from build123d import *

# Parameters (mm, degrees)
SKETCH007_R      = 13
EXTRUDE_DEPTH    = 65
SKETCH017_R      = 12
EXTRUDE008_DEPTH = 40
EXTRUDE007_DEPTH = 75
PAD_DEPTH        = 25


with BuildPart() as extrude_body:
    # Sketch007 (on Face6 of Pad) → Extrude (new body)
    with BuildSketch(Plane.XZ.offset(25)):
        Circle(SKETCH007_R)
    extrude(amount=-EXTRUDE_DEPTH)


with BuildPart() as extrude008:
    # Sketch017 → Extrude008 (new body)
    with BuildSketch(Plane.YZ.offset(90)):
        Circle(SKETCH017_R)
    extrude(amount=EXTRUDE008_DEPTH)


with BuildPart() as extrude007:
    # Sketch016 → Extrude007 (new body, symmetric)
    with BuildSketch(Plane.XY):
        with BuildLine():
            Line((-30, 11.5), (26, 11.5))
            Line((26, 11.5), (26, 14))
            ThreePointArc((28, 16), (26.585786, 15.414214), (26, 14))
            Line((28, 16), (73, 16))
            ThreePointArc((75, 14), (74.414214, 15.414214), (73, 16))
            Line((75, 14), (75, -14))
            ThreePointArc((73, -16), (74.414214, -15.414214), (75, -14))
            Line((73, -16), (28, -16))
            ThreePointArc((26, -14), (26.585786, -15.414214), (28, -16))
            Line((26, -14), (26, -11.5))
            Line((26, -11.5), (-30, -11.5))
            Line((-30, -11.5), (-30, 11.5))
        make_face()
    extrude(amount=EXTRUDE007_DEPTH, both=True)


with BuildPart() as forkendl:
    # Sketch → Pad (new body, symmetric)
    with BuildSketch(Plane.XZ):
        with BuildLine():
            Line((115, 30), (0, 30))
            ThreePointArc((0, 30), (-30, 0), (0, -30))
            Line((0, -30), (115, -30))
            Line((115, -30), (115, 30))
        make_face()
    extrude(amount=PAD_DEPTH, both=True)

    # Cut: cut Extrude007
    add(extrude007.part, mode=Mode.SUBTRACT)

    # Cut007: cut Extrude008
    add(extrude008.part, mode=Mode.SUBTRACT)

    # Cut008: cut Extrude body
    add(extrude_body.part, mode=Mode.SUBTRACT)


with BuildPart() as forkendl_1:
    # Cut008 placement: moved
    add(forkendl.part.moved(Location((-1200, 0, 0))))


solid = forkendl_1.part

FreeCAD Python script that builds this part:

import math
import FreeCAD as App
import Part
import Sketcher
Q = App.Units.Quantity

doc = App.newDocument("Part")
body = doc.addObject("PartDesign::Body", "Body")

# Sketch on XZ plane
sketch1 = body.newObject("Sketcher::SketchObject", "Sketch")
sketch1.AttachmentSupport = (doc.getObject("XZ_Plane"), [""])
sketch1.MapMode = "FlatFace"
sketch1.AttachmentOffset = App.Placement(App.Vector(0, 0, 25), App.Rotation())
sketch1.addGeometry(Part.Circle(App.Vector(0, 0, 0), App.Vector(0, 0, 1), 13), False)
sketch1.addConstraint(Sketcher.Constraint("Coincident", 0, 3, -1, 1))
sketch1.addConstraint(Sketcher.Constraint("Diameter", 0, Q("26 mm")))
pad1 = body.newObject("PartDesign::Pad", "Pad")
pad1.Profile = sketch1
pad1.Length = 65
pad1.Reversed = True
body2 = doc.addObject("PartDesign::Body", "Body001")

# Sketch on YZ plane
sketch2 = body2.newObject("Sketcher::SketchObject", "Sketch001")
sketch2.AttachmentSupport = (doc.getObject("YZ_Plane001"), [""])
sketch2.MapMode = "FlatFace"
sketch2.AttachmentOffset = App.Placement(App.Vector(0, 0, 90), App.Rotation())
sketch2.addGeometry(Part.Circle(App.Vector(0, 0, 0), App.Vector(0, 0, 1), 12), False)
sketch2.addConstraint(Sketcher.Constraint("Coincident", 0, 3, -1, 1))
sketch2.addConstraint(Sketcher.Constraint("Diameter", 0, Q("24 mm")))
pad2 = body2.newObject("PartDesign::Pad", "Pad001")
pad2.Profile = sketch2
pad2.Length = 40
body3 = doc.addObject("PartDesign::Body", "Body002")

# Sketch on XY plane
sketch3 = body3.newObject("Sketcher::SketchObject", "Sketch002")
sketch3.AttachmentSupport = (doc.getObject("XY_Plane002"), [""])
sketch3.MapMode = "FlatFace"
sketch3.addGeometry(Part.LineSegment(App.Vector(26, 11.5, 0), App.Vector(-30, 11.5, 0)), False)
sketch3.addGeometry(Part.LineSegment(App.Vector(-30, 11.5, 0), App.Vector(-30, -11.5, 0)), False)
sketch3.addGeometry(Part.LineSegment(App.Vector(-30, -11.5, 0), App.Vector(26, -11.5, 0)), False)
sketch3.addGeometry(Part.LineSegment(App.Vector(26, -11.5, 0), App.Vector(26, -14, 0)), False)
sketch3.addGeometry(Part.ArcOfCircle(Part.Circle(App.Vector(27.999999, -14.000001, 0), App.Vector(0, 0, 1), 1.999999), math.radians(179.999957), math.radians(270.000043)), False)
sketch3.addGeometry(Part.LineSegment(App.Vector(28, -16, 0), App.Vector(73, -16, 0)), False)
sketch3.addGeometry(Part.ArcOfCircle(Part.Circle(App.Vector(73.000001, -14.000001, 0), App.Vector(0, 0, 1), 1.999999), math.radians(-90.000043), math.radians(0.000043)), False)
sketch3.addGeometry(Part.LineSegment(App.Vector(75, -14, 0), App.Vector(75, 14, 0)), False)
sketch3.addGeometry(Part.ArcOfCircle(Part.Circle(App.Vector(73.000001, 14.000001, 0), App.Vector(0, 0, 1), 1.999999), math.radians(-0.000043), math.radians(90.000043)), False)
sketch3.addGeometry(Part.LineSegment(App.Vector(73, 16, 0), App.Vector(28, 16, 0)), False)
sketch3.addGeometry(Part.ArcOfCircle(Part.Circle(App.Vector(27.999999, 14.000001, 0), App.Vector(0, 0, 1), 1.999999), math.radians(89.999957), math.radians(180.000043)), False)
sketch3.addGeometry(Part.LineSegment(App.Vector(26, 14, 0), App.Vector(26, 11.5, 0)), False)
sketch3.addConstraint(Sketcher.Constraint("Coincident", 0, 2, 1, 1))
sketch3.addConstraint(Sketcher.Constraint("Coincident", 1, 2, 2, 1))
sketch3.addConstraint(Sketcher.Constraint("Coincident", 2, 2, 3, 1))
sketch3.addConstraint(Sketcher.Constraint("Tangent", 3, 2, 4, 1))
sketch3.addConstraint(Sketcher.Constraint("Tangent", 4, 2, 5, 1))
sketch3.addConstraint(Sketcher.Constraint("Tangent", 5, 2, 6, 1))
sketch3.addConstraint(Sketcher.Constraint("Tangent", 6, 2, 7, 1))
sketch3.addConstraint(Sketcher.Constraint("Tangent", 7, 2, 8, 1))
sketch3.addConstraint(Sketcher.Constraint("Tangent", 8, 2, 9, 1))
sketch3.addConstraint(Sketcher.Constraint("Tangent", 9, 2, 10, 1))
sketch3.addConstraint(Sketcher.Constraint("Tangent", 10, 2, 11, 1))
sketch3.addConstraint(Sketcher.Constraint("Coincident", 11, 2, 0, 1))
sketch3.addConstraint(Sketcher.Constraint("Horizontal", 0))
sketch3.addConstraint(Sketcher.Constraint("Vertical", 1))
sketch3.addConstraint(Sketcher.Constraint("Horizontal", 2))
sketch3.addConstraint(Sketcher.Constraint("Vertical", 3))
sketch3.addConstraint(Sketcher.Constraint("Horizontal", 5))
sketch3.addConstraint(Sketcher.Constraint("Vertical", 7))
sketch3.addConstraint(Sketcher.Constraint("Horizontal", 9))
sketch3.addConstraint(Sketcher.Constraint("Vertical", 11))
sketch3.addConstraint(Sketcher.Constraint("Equal", 4, 6))
sketch3.addConstraint(Sketcher.Constraint("Equal", 6, 8))
sketch3.addConstraint(Sketcher.Constraint("Equal", 8, 10))
sketch3.addConstraint(Sketcher.Constraint("Symmetric", 4, 3, 10, 3, -1))
sketch3.addConstraint(Sketcher.Constraint("Equal", 3, 11))
sketch3.addConstraint(Sketcher.Constraint("Radius", 4, Q("1.999999 mm")))
sketch3.addConstraint(Sketcher.Constraint("DistanceX", 0, 2, 0, 1, Q("56 mm")))
sketch3.addConstraint(Sketcher.Constraint("DistanceX", 5, 1, 5, 2, Q("45 mm")))
sketch3.addConstraint(Sketcher.Constraint("DistanceY", 1, 2, 1, 1, Q("23 mm")))
sketch3.addConstraint(Sketcher.Constraint("DistanceY", 7, 1, 7, 2, Q("28 mm")))
sketch3.addConstraint(Sketcher.Constraint("DistanceX", -1, 1, 4, 3, Q("27.999999 mm")))
pad3 = body3.newObject("PartDesign::Pad", "Pad002")
pad3.Profile = sketch3
pad3.Length = 150
pad3.Midplane = True
body4 = doc.addObject("PartDesign::Body", "Body003")

# Sketch on XZ plane
sketch4 = body4.newObject("Sketcher::SketchObject", "Sketch003")
sketch4.AttachmentSupport = (doc.getObject("XZ_Plane003"), [""])
sketch4.MapMode = "FlatFace"
sketch4.addGeometry(Part.LineSegment(App.Vector(115, 30, 0), App.Vector(0, 30, 0)), False)
sketch4.addGeometry(Part.ArcOfCircle(Part.Circle(App.Vector(0, 0, 0), App.Vector(0, 0, 1), 30), math.radians(90), math.radians(270)), False)
sketch4.addGeometry(Part.LineSegment(App.Vector(0, -30, 0), App.Vector(115, -30, 0)), False)
sketch4.addGeometry(Part.LineSegment(App.Vector(115, -30, 0), App.Vector(115, 30, 0)), False)
sketch4.addConstraint(Sketcher.Constraint("Tangent", 0, 2, 1, 1))
sketch4.addConstraint(Sketcher.Constraint("Tangent", 1, 2, 2, 1))
sketch4.addConstraint(Sketcher.Constraint("Coincident", 2, 2, 3, 1))
sketch4.addConstraint(Sketcher.Constraint("Coincident", 3, 2, 0, 1))
sketch4.addConstraint(Sketcher.Constraint("Horizontal", 0))
sketch4.addConstraint(Sketcher.Constraint("Horizontal", 2))
sketch4.addConstraint(Sketcher.Constraint("Vertical", 3))
sketch4.addConstraint(Sketcher.Constraint("Coincident", 1, 3, -1, 1))
sketch4.addConstraint(Sketcher.Constraint("Radius", 1, Q("30 mm")))
sketch4.addConstraint(Sketcher.Constraint("DistanceX", 0, 2, 0, 1, Q("115 mm")))
pad4 = body4.newObject("PartDesign::Pad", "Pad003")
pad4.Profile = sketch4
pad4.Length = 50
pad4.Midplane = True
doc.recompute()

boolean = body4.newObject("PartDesign::Boolean", "Boolean")
boolean.Type = "Cut"
boolean.addObjects([body3])
doc.recompute()

boolean2 = body4.newObject("PartDesign::Boolean", "Boolean001")
boolean2.Type = "Cut"
boolean2.addObjects([body2])
doc.recompute()

boolean3 = body4.newObject("PartDesign::Boolean", "Boolean002")
boolean3.Type = "Cut"
boolean3.addObjects([body])
body5 = doc.addObject("PartDesign::Body", "Body004")
doc.recompute()

body4.Placement = App.Placement(App.Vector(-1200, 0, 0), App.Rotation(App.Vector(0, 0, 1), 0))
boolean4 = body5.newObject("PartDesign::Boolean", "Boolean003")
boolean4.Type = "Fuse"
boolean4.addObjects([body4])

doc.recompute()
